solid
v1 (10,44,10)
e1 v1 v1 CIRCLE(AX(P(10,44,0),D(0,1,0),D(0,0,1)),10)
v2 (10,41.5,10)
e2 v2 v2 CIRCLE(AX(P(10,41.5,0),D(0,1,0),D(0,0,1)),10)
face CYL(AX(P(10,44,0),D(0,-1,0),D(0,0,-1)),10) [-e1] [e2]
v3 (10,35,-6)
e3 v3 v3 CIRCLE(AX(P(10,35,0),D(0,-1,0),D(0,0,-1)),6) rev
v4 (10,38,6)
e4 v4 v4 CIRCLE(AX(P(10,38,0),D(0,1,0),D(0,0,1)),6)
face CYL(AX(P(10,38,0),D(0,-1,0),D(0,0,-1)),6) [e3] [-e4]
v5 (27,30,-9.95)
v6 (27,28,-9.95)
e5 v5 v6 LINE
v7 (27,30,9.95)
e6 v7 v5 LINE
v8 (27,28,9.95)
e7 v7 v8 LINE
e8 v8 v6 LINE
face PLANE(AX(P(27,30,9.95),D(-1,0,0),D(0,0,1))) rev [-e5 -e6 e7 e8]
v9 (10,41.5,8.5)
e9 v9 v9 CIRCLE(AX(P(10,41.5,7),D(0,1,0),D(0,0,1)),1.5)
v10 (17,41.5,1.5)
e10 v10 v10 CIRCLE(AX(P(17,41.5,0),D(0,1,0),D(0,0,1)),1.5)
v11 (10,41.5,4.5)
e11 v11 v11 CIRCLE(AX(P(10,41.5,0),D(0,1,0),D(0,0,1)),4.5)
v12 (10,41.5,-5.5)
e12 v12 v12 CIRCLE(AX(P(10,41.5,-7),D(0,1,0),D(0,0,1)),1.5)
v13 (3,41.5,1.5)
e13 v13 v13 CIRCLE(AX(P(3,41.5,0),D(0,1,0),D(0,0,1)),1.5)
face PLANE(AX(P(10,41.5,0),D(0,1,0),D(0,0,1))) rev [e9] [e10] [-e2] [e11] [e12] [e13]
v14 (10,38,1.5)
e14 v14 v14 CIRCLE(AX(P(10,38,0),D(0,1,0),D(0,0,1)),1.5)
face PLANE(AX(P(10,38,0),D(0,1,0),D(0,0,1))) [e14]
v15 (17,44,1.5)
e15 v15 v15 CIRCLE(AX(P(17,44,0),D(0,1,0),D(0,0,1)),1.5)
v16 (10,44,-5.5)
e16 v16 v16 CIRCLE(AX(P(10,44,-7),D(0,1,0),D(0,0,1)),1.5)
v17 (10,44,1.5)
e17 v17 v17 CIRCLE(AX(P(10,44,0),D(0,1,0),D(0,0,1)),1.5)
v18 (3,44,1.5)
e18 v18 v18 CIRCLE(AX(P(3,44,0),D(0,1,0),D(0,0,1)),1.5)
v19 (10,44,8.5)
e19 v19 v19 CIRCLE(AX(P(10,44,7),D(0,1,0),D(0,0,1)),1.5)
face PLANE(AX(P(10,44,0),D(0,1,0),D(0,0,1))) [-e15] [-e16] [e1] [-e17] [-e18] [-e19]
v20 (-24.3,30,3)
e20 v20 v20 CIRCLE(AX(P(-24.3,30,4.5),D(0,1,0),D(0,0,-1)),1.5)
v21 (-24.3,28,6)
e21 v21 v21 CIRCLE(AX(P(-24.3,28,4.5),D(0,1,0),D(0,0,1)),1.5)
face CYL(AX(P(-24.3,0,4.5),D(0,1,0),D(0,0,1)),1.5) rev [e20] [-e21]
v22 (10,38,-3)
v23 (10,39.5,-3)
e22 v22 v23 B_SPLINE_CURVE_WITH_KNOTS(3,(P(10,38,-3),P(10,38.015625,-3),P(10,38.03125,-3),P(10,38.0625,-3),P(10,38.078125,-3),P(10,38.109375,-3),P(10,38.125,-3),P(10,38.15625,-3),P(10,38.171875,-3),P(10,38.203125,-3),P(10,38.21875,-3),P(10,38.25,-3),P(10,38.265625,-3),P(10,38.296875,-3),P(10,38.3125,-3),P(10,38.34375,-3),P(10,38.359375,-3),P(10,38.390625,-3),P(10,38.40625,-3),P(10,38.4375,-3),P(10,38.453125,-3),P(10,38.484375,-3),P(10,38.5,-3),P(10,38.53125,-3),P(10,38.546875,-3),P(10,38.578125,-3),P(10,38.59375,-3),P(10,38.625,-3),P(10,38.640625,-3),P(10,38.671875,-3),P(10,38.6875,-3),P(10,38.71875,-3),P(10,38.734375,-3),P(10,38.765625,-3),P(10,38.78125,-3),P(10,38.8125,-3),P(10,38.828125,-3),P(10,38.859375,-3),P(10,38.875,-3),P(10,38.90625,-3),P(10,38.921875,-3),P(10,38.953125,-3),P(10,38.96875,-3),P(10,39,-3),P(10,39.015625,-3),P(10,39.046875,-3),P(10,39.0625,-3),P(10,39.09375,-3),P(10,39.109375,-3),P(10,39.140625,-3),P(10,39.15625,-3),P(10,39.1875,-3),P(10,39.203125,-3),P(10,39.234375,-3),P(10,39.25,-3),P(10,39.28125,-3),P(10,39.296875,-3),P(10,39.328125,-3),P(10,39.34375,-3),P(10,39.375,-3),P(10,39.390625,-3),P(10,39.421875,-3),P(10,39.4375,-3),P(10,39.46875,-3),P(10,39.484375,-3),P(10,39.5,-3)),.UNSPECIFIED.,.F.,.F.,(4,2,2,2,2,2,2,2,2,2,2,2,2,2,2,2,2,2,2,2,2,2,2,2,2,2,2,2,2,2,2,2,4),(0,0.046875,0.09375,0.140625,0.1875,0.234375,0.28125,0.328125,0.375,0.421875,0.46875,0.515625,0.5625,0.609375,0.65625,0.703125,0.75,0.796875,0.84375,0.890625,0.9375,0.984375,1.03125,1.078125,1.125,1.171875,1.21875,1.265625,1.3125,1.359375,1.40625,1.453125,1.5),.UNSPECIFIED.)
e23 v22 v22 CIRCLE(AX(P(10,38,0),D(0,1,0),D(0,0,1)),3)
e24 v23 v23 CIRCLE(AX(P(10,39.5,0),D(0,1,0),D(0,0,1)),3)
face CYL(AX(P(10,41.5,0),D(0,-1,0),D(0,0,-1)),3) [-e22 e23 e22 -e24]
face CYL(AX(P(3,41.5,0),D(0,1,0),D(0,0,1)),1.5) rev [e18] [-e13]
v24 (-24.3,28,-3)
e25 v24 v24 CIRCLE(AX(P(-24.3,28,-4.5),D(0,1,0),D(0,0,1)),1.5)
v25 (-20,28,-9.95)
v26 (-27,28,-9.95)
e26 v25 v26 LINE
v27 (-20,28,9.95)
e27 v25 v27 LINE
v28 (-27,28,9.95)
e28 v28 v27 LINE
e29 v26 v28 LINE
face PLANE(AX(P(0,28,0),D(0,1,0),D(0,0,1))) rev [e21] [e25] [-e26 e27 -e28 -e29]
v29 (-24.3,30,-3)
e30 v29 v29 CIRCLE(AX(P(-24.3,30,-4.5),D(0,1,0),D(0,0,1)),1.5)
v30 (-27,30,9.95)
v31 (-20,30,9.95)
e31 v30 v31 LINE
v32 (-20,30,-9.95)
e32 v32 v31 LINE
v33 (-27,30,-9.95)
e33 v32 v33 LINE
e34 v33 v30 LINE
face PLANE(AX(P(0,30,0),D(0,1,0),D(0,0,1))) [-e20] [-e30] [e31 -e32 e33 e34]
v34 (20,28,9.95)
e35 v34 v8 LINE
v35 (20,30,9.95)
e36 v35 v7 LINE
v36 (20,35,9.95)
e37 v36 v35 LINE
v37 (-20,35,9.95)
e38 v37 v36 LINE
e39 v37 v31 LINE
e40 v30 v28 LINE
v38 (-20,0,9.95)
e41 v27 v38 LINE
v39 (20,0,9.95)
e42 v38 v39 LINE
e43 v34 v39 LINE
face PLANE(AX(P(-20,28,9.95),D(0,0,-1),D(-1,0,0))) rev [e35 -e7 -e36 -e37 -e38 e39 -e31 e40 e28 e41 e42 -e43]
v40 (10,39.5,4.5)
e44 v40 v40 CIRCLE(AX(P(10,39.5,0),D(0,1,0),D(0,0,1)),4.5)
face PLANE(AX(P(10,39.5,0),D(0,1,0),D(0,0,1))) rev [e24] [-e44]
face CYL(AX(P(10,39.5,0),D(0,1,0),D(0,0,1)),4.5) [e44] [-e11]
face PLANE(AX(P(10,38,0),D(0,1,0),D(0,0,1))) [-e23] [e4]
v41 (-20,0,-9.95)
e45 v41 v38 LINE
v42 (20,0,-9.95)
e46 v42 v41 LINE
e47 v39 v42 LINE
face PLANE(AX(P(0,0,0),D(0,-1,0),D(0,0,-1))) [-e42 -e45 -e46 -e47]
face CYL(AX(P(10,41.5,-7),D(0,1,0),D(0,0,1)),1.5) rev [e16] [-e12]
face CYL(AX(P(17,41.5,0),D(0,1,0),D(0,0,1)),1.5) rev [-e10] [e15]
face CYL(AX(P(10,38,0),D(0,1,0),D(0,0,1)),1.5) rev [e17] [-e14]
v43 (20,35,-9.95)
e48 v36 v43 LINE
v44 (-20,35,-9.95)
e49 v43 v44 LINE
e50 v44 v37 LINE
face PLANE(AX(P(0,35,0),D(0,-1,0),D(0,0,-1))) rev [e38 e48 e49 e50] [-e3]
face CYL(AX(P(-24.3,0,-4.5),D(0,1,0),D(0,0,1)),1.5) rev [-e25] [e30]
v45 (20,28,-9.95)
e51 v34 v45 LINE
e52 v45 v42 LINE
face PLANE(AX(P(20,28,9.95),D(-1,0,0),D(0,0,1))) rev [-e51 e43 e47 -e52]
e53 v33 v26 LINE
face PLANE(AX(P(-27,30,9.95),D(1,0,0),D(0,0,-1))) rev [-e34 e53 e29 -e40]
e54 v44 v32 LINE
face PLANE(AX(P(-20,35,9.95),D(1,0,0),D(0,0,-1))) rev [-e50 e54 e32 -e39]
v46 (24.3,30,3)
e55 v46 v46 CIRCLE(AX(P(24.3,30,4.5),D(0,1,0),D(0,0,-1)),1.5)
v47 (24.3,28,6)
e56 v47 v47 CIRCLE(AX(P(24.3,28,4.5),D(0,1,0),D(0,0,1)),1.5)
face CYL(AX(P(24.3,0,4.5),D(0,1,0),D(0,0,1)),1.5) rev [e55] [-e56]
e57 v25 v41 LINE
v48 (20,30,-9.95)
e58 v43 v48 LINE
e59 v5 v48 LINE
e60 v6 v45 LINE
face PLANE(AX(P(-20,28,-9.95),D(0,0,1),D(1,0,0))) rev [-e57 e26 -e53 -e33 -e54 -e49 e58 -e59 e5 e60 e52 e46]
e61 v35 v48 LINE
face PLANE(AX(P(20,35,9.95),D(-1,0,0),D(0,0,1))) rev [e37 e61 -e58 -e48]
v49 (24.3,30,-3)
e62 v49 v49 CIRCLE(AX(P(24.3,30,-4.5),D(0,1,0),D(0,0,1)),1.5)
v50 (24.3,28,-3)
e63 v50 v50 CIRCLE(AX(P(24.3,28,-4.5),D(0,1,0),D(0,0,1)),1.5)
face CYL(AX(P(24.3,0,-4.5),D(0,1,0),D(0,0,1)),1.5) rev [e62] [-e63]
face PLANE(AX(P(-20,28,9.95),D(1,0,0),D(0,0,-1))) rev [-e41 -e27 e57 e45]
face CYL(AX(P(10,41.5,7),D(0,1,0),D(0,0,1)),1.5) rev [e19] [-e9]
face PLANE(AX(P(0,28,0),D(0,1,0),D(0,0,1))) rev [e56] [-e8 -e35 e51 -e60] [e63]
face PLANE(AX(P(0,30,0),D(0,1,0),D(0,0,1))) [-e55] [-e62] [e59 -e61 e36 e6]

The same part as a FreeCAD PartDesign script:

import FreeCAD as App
import Part
import Sketcher

V = App.Vector

doc = App.newDocument("Part")
body = doc.addObject("PartDesign::Body", "Body")

# Sketch on XZ plane
sketch1 = doc.addObject("Sketcher::SketchObject", "Sketch")
body.addObject(sketch1)
sketch1.AttachmentSupport = (doc.XZ_Plane, [""])
sketch1.MapMode = "FlatFace"
sketch1.addGeometry([
    Part.LineSegment(V(-20, -10, 0), V(-20, 10, 0)),
    Part.LineSegment(V(-20, 10, 0), V(20, 10, 0)),
    Part.LineSegment(V(20, 10, 0), V(20, -10, 0)),
    Part.LineSegment(V(20, -10, 0), V(-20, -10, 0)),
], False)
sketch1.addConstraint([
    Sketcher.Constraint("Coincident", 0, 2, 1, 1),
    Sketcher.Constraint("Coincident", 1, 2, 2, 1),
    Sketcher.Constraint("Coincident", 2, 2, 3, 1),
    Sketcher.Constraint("Coincident", 3, 2, 0, 1),
    Sketcher.Constraint("Vertical", 0),
    Sketcher.Constraint("Horizontal", 1),
    Sketcher.Constraint("Vertical", 2),
    Sketcher.Constraint("Horizontal", 3),
    Sketcher.Constraint("Symmetric", 0, 2, 2, 2, -1, 1),
    Sketcher.Constraint("DistanceX", 1, 1, 1, 2, 40.0),
    Sketcher.Constraint("DistanceY", 0, 1, 0, 2, 19.9),
])
pad1 = doc.addObject("PartDesign::Pad", "Pad")
body.addObject(pad1)
pad1.Profile = sketch1
pad1.Length = 28
pad1.Reversed = True

# Sketch on XZ plane
sketch2 = doc.addObject("Sketcher::SketchObject", "Sketch001")
body.addObject(sketch2)
sketch2.AttachmentSupport = (doc.XZ_Plane, [""])
sketch2.MapMode = "FlatFace"
sketch2.AttachmentOffset = App.Placement(V(0, 0, -28), App.Rotation())
sketch2.addGeometry([
    Part.LineSegment(V(-27, -10, 0), V(-27, 10, 0)),
    Part.LineSegment(V(-27, 10, 0), V(27, 10, 0)),
    Part.LineSegment(V(27, 10, 0), V(27, -10, 0)),
    Part.LineSegment(V(27, -10, 0), V(-27, -10, 0)),
], False)
sketch2.addConstraint([
    Sketcher.Constraint("Coincident", 0, 2, 1, 1),
    Sketcher.Constraint("Coincident", 1, 2, 2, 1),
    Sketcher.Constraint("Coincident", 2, 2, 3, 1),
    Sketcher.Constraint("Coincident", 3, 2, 0, 1),
    Sketcher.Constraint("Vertical", 0),
    Sketcher.Constraint("Horizontal", 1),
    Sketcher.Constraint("Vertical", 2),
    Sketcher.Constraint("Horizontal", 3),
    Sketcher.Constraint("Symmetric", 0, 2, 2, 2, -1, 1),
    Sketcher.Constraint("DistanceX", 1, 1, 1, 2, 54.0),
    Sketcher.Constraint("DistanceY", 0, 1, 0, 2, 19.9),
])
pad2 = doc.addObject("PartDesign::Pad", "Pad001")
body.addObject(pad2)
pad2.Profile = sketch2
pad2.Length = 2
pad2.Reversed = True

# Sketch on XZ plane
sketch3 = doc.addObject("Sketcher::SketchObject", "Sketch002")
body.addObject(sketch3)
sketch3.AttachmentSupport = (doc.XZ_Plane, [""])
sketch3.MapMode = "FlatFace"
sketch3.AttachmentOffset = App.Placement(V(0, 0, -30), App.Rotation())
sketch3.addGeometry([
    Part.LineSegment(V(-20, -10, 0), V(-20, 10, 0)),
    Part.LineSegment(V(-20, 10, 0), V(20, 10, 0)),
    Part.LineSegment(V(20, 10, 0), V(20, -10, 0)),
    Part.LineSegment(V(20, -10, 0), V(-20, -10, 0)),
], False)
sketch3.addConstraint([
    Sketcher.Constraint("Coincident", 0, 2, 1, 1),
    Sketcher.Constraint("Coincident", 1, 2, 2, 1),
    Sketcher.Constraint("Coincident", 2, 2, 3, 1),
    Sketcher.Constraint("Coincident", 3, 2, 0, 1),
    Sketcher.Constraint("Vertical", 0),
    Sketcher.Constraint("Horizontal", 1),
    Sketcher.Constraint("Vertical", 2),
    Sketcher.Constraint("Horizontal", 3),
    Sketcher.Constraint("Symmetric", 0, 2, 2, 2, -1, 1),
    Sketcher.Constraint("DistanceX", 1, 1, 1, 2, 40.0),
    Sketcher.Constraint("DistanceY", 0, 1, 0, 2, 19.9),
])
pad3 = doc.addObject("PartDesign::Pad", "Pad002")
body.addObject(pad3)
pad3.Profile = sketch3
pad3.Length = 5
pad3.Reversed = True

# Sketch on XZ plane
sketch4 = doc.addObject("Sketcher::SketchObject", "Sketch003")
body.addObject(sketch4)
sketch4.AttachmentSupport = (doc.XZ_Plane, [""])
sketch4.MapMode = "FlatFace"
sketch4.AttachmentOffset = App.Placement(V(0, 0, -30), App.Rotation())
sketch4.addGeometry([
    Part.Circle(V(-24.3, -4.5, 0), V(0, 0, 1), 1.5),
    Part.Circle(V(24.3, -4.5, 0), V(0, 0, 1), 1.5),
    Part.Circle(V(24.3, 4.5, 0), V(0, 0, 1), 1.5),
    Part.Circle(V(-24.3, 4.5, 0), V(0, 0, 1), 1.5),
], False)
sketch4.addConstraint([
    Sketcher.Constraint("Equal", 0, 1),
    Sketcher.Constraint("Equal", 1, 2),
    Sketcher.Constraint("Equal", 2, 3),
    Sketcher.Constraint("Symmetric", 0, 3, 2, 3, -1, 1),
    Sketcher.Constraint("Symmetric", 1, 3, 3, 3, -1, 1),
    Sketcher.Constraint("Symmetric", 0, 3, 1, 3, -2),
    Sketcher.Constraint("Diameter", 0, 3.0),
    Sketcher.Constraint("DistanceY", 1, 3, 2, 3, 9.0),
    Sketcher.Constraint("DistanceX", 0, 3, -1, 1, 24.3),
])
pocket1 = doc.addObject("PartDesign::Pocket", "Pocket")
body.addObject(pocket1)
pocket1.Profile = sketch4
pocket1.Type = "ThroughAll"
pocket1.Reversed = True

# Sketch on XZ plane
sketch5 = doc.addObject("Sketcher::SketchObject", "Sketch004")
body.addObject(sketch5)
sketch5.AttachmentSupport = (doc.XZ_Plane, [""])
sketch5.MapMode = "FlatFace"
sketch5.AttachmentOffset = App.Placement(V(0, 0, -35), App.Rotation())
sketch5.addGeometry(Part.Circle(V(10, 0, 0), V(0, 0, 1), 3), False)
sketch5.addConstraint([
    Sketcher.Constraint("PointOnObject", 0, 3, -1),
    Sketcher.Constraint("Diameter", 0, 6.0),
    Sketcher.Constraint("DistanceX", -1, 1, 0, 3, 10.0),
])
pad4 = doc.addObject("PartDesign::Pad", "Pad003")
body.addObject(pad4)
pad4.Profile = sketch5
pad4.Length = 6.5
pad4.Reversed = True

# Sketch on XZ plane
sketch6 = doc.addObject("Sketcher::SketchObject", "Sketch005")
body.addObject(sketch6)
sketch6.AttachmentSupport = (doc.XZ_Plane, [""])
sketch6.MapMode = "FlatFace"
sketch6.AttachmentOffset = App.Placement(V(0, 0, -35), App.Rotation())
sketch6.addGeometry(Part.Circle(V(10, 0, 0), V(0, 0, 1), 6), False)
sketch6.addConstraint([
    Sketcher.Constraint("PointOnObject", 0, 3, -1),
    Sketcher.Constraint("Diameter", 0, 12.0),
    Sketcher.Constraint("DistanceX", -1, 1, 0, 3, 10.0),
])
pad5 = doc.addObject("PartDesign::Pad", "Pad004")
body.addObject(pad5)
pad5.Profile = sketch6
pad5.Length = 3
pad5.Reversed = True

# Sketch on XZ plane
sketch7 = doc.addObject("Sketcher::SketchObject", "Sketch006")
body.addObject(sketch7)
sketch7.AttachmentSupport = (doc.XZ_Plane, [""])
sketch7.MapMode = "FlatFace"
sketch7.AttachmentOffset = App.Placement(V(0, 0, -41.5), App.Rotation())
sketch7.addGeometry(Part.Circle(V(10, 0, 0), V(0, 0, 1), 4.5), False)
sketch7.addConstraint([
    Sketcher.Constraint("PointOnObject", 0, 3, -1),
    Sketcher.Constraint("Diameter", 0, 9.0),
    Sketcher.Constraint("DistanceX", -1, 1, 0, 3, 10.0),
])
pad6 = doc.addObject("PartDesign::Pad", "Pad005")
body.addObject(pad6)
pad6.Profile = sketch7
pad6.Length = 2

# Sketch on XZ plane
sketch8 = doc.addObject("Sketcher::SketchObject", "Sketch007")
body.addObject(sketch8)
sketch8.AttachmentSupport = (doc.XZ_Plane, [""])
sketch8.MapMode = "FlatFace"
sketch8.AttachmentOffset = App.Placement(V(0, 0, -41.5), App.Rotation())
sketch8.addGeometry(Part.Circle(V(10, 0, 0), V(0, 0, 1), 10), False)
sketch8.addConstraint([
    Sketcher.Constraint("PointOnObject", 0, 3, -1),
    Sketcher.Constraint("Diameter", 0, 20.0),
    Sketcher.Constraint("DistanceX", -1, 1, 0, 3, 10.0),
])
pad7 = doc.addObject("PartDesign::Pad", "Pad006")
body.addObject(pad7)
pad7.Profile = sketch8
pad7.Length = 2.5
pad7.Reversed = True

# Sketch on XZ plane
sketch9 = doc.addObject("Sketcher::SketchObject", "Sketch008")
body.addObject(sketch9)
sketch9.AttachmentSupport = (doc.XZ_Plane, [""])
sketch9.MapMode = "FlatFace"
sketch9.AttachmentOffset = App.Placement(V(0, 0, -44), App.Rotation())
sketch9.addGeometry([
    Part.Circle(V(10, -7, 0), V(0, 0, 1), 1.5),
    Part.Circle(V(17, 0, 0), V(0, 0, 1), 1.5),
    Part.Circle(V(10, 7, 0), V(0, 0, 1), 1.5),
    Part.Circle(V(3, 0, 0), V(0, 0, 1), 1.5),
], False)
sketch9.addConstraint([
    Sketcher.Constraint("Equal", 0, 1),
    Sketcher.Constraint("Equal", 1, 2),
    Sketcher.Constraint("Equal", 2, 3),
    Sketcher.Constraint("Symmetric", 0, 3, 2, 3, -1),
    Sketcher.Constraint("PointOnObject", 1, 3, -1),
    Sketcher.Constraint("PointOnObject", 3, 3, -1),
    Sketcher.Constraint("Diameter", 0, 3.0),
    Sketcher.Constraint("DistanceX", -1, 1, 0, 3, 10.0),
    Sketcher.Constraint("DistanceY", 0, 3, -1, 1, 7.0),
    Sketcher.Constraint("DistanceX", -1, 1, 1, 3, 17.0),
    Sketcher.Constraint("DistanceX", -1, 1, 3, 3, 3.0),
])
pocket2 = doc.addObject("PartDesign::Pocket", "Pocket001")
body.addObject(pocket2)
pocket2.Profile = sketch9
pocket2.Length = 2.5
pocket2.Reversed = True

# Sketch on XZ plane
sketch10 = doc.addObject("Sketcher::SketchObject", "Sketch009")
body.addObject(sketch10)
sketch10.AttachmentSupport = (doc.XZ_Plane, [""])
sketch10.MapMode = "FlatFace"
sketch10.AttachmentOffset = App.Placement(V(0, 0, -44), App.Rotation())
sketch10.addGeometry(Part.Circle(V(10, 0, 0), V(0, 0, 1), 1.5), False)
sketch10.addConstraint([
    Sketcher.Constraint("PointOnObject", 0, 3, -1),
    Sketcher.Constraint("Diameter", 0, 3.0),
    Sketcher.Constraint("DistanceX", -1, 1, 0, 3, 10.0),
])
pocket3 = doc.addObject("PartDesign::Pocket", "Pocket002")
body.addObject(pocket3)
pocket3.Profile = sketch10
pocket3.Length = 6
pocket3.Reversed = True

doc.recompute()
